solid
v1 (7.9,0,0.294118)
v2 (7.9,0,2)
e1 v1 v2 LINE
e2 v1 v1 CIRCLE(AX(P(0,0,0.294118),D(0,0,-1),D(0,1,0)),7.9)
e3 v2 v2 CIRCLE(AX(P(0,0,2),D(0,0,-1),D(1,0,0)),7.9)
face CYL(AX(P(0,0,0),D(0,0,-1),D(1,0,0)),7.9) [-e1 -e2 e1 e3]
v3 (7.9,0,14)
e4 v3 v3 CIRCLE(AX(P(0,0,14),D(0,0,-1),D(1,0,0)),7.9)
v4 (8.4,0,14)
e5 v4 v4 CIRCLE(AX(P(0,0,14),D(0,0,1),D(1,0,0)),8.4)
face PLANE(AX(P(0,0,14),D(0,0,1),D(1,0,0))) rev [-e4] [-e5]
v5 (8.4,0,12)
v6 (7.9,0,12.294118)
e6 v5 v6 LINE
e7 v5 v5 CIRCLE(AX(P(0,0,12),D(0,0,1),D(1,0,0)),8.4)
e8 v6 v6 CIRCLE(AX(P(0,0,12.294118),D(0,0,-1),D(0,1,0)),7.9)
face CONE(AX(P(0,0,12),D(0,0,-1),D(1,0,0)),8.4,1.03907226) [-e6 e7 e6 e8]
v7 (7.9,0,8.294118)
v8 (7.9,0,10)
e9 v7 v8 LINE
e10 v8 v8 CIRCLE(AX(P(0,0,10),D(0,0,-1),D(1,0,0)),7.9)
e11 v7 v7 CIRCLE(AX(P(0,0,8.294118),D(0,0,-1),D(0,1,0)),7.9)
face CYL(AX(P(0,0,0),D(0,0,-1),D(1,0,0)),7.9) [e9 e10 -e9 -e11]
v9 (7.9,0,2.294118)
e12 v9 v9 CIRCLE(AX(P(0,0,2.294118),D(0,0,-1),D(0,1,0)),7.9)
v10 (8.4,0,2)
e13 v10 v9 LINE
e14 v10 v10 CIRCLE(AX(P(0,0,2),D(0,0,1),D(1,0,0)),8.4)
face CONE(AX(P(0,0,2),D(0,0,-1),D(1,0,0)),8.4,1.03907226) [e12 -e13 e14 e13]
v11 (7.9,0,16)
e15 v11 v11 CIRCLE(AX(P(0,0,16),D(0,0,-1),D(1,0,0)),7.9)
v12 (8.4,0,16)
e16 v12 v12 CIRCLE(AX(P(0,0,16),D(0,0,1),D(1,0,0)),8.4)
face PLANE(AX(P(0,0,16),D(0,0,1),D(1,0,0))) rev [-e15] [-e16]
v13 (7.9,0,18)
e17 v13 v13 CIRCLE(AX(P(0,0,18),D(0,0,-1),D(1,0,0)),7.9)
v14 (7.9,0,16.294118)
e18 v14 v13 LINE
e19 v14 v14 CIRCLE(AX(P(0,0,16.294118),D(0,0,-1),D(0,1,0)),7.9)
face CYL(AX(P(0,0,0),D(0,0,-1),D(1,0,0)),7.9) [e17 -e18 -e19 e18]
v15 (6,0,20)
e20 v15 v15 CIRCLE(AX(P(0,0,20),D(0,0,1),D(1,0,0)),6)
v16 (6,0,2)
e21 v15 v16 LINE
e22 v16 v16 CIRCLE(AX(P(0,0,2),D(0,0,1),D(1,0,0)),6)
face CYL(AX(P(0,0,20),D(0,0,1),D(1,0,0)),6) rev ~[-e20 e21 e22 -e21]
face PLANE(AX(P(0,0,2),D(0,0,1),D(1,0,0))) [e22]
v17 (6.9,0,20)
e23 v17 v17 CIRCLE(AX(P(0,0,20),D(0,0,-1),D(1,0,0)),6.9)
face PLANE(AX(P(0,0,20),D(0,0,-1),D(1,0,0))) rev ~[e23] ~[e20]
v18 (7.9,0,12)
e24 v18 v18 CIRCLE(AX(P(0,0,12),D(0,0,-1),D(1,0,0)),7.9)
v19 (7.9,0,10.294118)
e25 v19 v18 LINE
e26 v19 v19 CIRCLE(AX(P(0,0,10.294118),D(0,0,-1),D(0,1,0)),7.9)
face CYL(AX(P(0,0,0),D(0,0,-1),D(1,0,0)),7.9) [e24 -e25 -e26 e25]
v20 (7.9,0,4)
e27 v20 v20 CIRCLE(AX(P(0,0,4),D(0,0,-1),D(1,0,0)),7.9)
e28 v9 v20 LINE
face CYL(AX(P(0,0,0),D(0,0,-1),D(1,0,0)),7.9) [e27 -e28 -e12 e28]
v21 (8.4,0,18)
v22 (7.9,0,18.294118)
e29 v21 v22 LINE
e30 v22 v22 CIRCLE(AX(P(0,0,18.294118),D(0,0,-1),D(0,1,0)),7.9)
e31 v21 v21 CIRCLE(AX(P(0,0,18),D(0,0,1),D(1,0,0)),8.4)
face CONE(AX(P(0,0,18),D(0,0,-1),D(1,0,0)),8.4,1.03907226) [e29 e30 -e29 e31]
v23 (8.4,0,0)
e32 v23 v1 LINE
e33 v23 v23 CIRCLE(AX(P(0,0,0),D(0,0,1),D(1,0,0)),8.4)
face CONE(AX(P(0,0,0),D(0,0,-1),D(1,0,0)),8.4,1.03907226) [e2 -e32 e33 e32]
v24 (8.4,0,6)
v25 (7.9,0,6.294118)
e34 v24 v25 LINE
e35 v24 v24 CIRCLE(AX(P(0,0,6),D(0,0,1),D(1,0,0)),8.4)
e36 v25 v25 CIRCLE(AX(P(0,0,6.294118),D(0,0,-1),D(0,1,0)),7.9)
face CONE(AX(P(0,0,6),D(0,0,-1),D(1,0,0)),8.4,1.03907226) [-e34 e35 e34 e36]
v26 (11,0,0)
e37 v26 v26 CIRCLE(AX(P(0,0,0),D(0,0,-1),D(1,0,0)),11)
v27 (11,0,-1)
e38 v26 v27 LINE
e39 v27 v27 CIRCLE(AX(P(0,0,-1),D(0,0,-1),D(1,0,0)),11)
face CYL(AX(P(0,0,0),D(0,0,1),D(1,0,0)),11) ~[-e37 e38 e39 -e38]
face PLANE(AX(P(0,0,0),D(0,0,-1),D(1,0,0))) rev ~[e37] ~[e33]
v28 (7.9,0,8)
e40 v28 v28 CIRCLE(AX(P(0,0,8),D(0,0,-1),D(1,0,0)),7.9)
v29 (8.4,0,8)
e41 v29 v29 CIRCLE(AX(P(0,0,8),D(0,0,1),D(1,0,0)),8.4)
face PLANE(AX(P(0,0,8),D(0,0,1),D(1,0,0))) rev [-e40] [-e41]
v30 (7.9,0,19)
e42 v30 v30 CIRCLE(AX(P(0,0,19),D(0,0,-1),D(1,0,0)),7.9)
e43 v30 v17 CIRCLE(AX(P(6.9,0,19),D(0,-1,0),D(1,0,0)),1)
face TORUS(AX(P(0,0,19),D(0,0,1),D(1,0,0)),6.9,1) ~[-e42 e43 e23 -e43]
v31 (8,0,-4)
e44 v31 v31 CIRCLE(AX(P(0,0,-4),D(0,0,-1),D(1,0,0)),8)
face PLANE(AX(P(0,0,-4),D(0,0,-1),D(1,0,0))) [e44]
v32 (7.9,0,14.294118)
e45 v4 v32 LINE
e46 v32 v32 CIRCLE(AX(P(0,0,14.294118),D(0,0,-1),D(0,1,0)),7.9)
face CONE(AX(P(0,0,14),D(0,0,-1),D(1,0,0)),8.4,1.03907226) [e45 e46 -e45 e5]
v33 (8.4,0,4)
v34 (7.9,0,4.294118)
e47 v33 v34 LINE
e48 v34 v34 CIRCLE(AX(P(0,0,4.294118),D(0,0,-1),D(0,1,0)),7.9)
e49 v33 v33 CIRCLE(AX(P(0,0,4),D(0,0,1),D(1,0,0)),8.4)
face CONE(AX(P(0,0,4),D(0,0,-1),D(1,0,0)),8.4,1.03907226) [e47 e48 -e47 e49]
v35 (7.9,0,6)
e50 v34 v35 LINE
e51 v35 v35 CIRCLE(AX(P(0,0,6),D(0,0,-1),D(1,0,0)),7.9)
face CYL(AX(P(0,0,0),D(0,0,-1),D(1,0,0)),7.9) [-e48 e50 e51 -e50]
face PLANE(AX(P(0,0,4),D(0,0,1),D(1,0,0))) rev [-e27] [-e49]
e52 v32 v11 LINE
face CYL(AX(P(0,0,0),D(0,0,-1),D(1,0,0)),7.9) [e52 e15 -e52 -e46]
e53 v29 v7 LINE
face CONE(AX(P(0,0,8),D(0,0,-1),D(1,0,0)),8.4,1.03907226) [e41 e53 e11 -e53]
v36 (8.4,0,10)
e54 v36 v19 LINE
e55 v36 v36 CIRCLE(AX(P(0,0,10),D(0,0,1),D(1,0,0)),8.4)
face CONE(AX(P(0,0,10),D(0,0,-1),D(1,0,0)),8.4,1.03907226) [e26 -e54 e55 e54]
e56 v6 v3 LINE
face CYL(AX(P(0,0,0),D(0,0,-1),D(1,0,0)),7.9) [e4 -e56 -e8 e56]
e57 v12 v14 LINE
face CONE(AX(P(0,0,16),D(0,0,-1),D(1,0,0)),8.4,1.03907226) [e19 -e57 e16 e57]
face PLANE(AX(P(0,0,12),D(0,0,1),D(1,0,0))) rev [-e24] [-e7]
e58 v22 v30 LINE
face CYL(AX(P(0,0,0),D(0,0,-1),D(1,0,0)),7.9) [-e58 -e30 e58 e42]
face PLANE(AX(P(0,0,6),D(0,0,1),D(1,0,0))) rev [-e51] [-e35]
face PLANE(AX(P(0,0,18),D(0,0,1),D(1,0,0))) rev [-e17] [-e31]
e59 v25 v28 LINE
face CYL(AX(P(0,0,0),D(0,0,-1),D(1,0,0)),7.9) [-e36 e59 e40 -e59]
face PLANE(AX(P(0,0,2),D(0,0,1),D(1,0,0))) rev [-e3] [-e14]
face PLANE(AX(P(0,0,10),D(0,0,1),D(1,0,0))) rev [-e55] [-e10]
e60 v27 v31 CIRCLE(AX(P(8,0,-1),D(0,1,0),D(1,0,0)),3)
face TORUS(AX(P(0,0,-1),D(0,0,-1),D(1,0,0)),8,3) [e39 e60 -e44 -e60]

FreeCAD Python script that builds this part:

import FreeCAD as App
import Part
import Sketcher
Q = App.Units.Quantity


def edges_at(feature, points):
    """Names of the edges that pass closest to the given points."""
    edges = feature.Shape.Edges
    near = lambda p: min(range(len(edges)), key=lambda i: edges[i].distToShape(Part.Vertex(*p))[0])
    return sorted({f"Edge{near(p) + 1}" for p in points})


def add_polygon(sketch, points):
    """Adds a closed chain of lines whose ends are joined by coincident constraints."""
    first, n = sketch.GeometryCount, len(points)
    for a, b in zip(points, points[1:] + points[:1]):
        sketch.addGeometry(Part.LineSegment(App.Vector(*a, 0), App.Vector(*b, 0)), False)
    for i in range(n):
        sketch.addConstraint(Sketcher.Constraint("Coincident", first + i, 2, first + (i + 1) % n, 1))

doc = App.newDocument("Part")
body = doc.addObject("PartDesign::Body", "Body")

# Sketch on XZ plane
sketch1 = body.newObject("Sketcher::SketchObject", "Sketch")
sketch1.AttachmentSupport = (doc.getObject("XZ_Plane"), [""])
sketch1.MapMode = "FlatFace"
add_polygon(sketch1, [(0, 0), (8.4, 0), (5, 2), (0, 2)])  # lines 0-3
sketch1.addConstraint([
    Sketcher.Constraint("Horizontal", 0),
    Sketcher.Constraint("Horizontal", 2),
    Sketcher.Constraint("Vertical", 3),
    Sketcher.Constraint("Coincident", 3, 2, -1, 1),
    Sketcher.Constraint("DistanceX", 2, 2, 2, 1, Q("5 mm")),
    Sketcher.Constraint("DistanceY", 3, 2, 3, 1, Q("2 mm")),
    Sketcher.Constraint("DistanceX", 0, 1, 0, 2, Q("8.4 mm")),
])
revolution = body.newObject("PartDesign::Revolution", "Revolution")
revolution.Profile = sketch1
revolution.ReferenceAxis = (sketch1, ["V_Axis"])
revolution.Angle = 360
doc.recompute()

linearpattern = body.newObject("PartDesign::LinearPattern", "LinearPattern")
linearpattern.Originals = [revolution]
linearpattern.Direction = (doc.getObject("Z_Axis"), [""])
linearpattern.Mode = "offset"
linearpattern.Offset = 2
linearpattern.Occurrences = 10
body.Tip = linearpattern

# Sketch on XY plane
sketch2 = body.newObject("Sketcher::SketchObject", "Sketch001")
sketch2.AttachmentSupport = (doc.getObject("XY_Plane"), [""])
sketch2.MapMode = "FlatFace"
sketch2.addGeometry(Part.Circle(App.Vector(0, 0, 0), App.Vector(0, 0, 1), 8), False)
sketch2.addConstraint([
    Sketcher.Constraint("Coincident", 0, 3, -1, 1),
    Sketcher.Constraint("Diameter", 0, Q("15.8 mm")),
])
pad1 = body.newObject("PartDesign::Pad", "Pad")
pad1.Profile = sketch2
pad1.Length = 20

# Sketch on XY plane
sketch3 = body.newObject("Sketcher::SketchObject", "Sketch002")
sketch3.AttachmentSupport = (doc.getObject("XY_Plane"), [""])
sketch3.MapMode = "FlatFace"
sketch3.addGeometry(Part.Circle(App.Vector(0, 0, 0), App.Vector(0, 0, 1), 11), False)
sketch3.addConstraint([
    Sketcher.Constraint("Coincident", 0, 3, -1, 1),
    Sketcher.Constraint("Diameter", 0, Q("22 mm")),
])
pad2 = body.newObject("PartDesign::Pad", "Pad001")
pad2.Profile = sketch3
pad2.Length = 4
pad2.Reversed = True
doc.recompute()

fillet = body.newObject("PartDesign::Fillet", "Fillet")
fillet.Base = (pad2, edges_at(pad2, [(-11, 0, -4)]))
fillet.Radius = 3

# Sketch on XY plane
sketch4 = body.newObject("Sketcher::SketchObject", "Sketch003")
sketch4.AttachmentSupport = (doc.getObject("XY_Plane"), [""])
sketch4.MapMode = "FlatFace"
sketch4.AttachmentOffset = App.Placement(App.Vector(0, 0, 20), App.Rotation())
sketch4.addGeometry(Part.Circle(App.Vector(0, 0, 0), App.Vector(0, 0, 1), 6), False)
sketch4.addConstraint([
    Sketcher.Constraint("Coincident", 0, 3, -1, 1),
    Sketcher.Constraint("Diameter", 0, Q("12 mm")),
])
pocket1 = body.newObject("PartDesign::Pocket", "Pocket")
pocket1.Profile = sketch4
pocket1.Length = 18
doc.recompute()

fillet2 = body.newObject("PartDesign::Fillet", "Fillet001")
fillet2.Base = (pocket1, edges_at(pocket1, [(-7.9, 0, 20)]))
fillet2.Radius = 1

doc.recompute()
